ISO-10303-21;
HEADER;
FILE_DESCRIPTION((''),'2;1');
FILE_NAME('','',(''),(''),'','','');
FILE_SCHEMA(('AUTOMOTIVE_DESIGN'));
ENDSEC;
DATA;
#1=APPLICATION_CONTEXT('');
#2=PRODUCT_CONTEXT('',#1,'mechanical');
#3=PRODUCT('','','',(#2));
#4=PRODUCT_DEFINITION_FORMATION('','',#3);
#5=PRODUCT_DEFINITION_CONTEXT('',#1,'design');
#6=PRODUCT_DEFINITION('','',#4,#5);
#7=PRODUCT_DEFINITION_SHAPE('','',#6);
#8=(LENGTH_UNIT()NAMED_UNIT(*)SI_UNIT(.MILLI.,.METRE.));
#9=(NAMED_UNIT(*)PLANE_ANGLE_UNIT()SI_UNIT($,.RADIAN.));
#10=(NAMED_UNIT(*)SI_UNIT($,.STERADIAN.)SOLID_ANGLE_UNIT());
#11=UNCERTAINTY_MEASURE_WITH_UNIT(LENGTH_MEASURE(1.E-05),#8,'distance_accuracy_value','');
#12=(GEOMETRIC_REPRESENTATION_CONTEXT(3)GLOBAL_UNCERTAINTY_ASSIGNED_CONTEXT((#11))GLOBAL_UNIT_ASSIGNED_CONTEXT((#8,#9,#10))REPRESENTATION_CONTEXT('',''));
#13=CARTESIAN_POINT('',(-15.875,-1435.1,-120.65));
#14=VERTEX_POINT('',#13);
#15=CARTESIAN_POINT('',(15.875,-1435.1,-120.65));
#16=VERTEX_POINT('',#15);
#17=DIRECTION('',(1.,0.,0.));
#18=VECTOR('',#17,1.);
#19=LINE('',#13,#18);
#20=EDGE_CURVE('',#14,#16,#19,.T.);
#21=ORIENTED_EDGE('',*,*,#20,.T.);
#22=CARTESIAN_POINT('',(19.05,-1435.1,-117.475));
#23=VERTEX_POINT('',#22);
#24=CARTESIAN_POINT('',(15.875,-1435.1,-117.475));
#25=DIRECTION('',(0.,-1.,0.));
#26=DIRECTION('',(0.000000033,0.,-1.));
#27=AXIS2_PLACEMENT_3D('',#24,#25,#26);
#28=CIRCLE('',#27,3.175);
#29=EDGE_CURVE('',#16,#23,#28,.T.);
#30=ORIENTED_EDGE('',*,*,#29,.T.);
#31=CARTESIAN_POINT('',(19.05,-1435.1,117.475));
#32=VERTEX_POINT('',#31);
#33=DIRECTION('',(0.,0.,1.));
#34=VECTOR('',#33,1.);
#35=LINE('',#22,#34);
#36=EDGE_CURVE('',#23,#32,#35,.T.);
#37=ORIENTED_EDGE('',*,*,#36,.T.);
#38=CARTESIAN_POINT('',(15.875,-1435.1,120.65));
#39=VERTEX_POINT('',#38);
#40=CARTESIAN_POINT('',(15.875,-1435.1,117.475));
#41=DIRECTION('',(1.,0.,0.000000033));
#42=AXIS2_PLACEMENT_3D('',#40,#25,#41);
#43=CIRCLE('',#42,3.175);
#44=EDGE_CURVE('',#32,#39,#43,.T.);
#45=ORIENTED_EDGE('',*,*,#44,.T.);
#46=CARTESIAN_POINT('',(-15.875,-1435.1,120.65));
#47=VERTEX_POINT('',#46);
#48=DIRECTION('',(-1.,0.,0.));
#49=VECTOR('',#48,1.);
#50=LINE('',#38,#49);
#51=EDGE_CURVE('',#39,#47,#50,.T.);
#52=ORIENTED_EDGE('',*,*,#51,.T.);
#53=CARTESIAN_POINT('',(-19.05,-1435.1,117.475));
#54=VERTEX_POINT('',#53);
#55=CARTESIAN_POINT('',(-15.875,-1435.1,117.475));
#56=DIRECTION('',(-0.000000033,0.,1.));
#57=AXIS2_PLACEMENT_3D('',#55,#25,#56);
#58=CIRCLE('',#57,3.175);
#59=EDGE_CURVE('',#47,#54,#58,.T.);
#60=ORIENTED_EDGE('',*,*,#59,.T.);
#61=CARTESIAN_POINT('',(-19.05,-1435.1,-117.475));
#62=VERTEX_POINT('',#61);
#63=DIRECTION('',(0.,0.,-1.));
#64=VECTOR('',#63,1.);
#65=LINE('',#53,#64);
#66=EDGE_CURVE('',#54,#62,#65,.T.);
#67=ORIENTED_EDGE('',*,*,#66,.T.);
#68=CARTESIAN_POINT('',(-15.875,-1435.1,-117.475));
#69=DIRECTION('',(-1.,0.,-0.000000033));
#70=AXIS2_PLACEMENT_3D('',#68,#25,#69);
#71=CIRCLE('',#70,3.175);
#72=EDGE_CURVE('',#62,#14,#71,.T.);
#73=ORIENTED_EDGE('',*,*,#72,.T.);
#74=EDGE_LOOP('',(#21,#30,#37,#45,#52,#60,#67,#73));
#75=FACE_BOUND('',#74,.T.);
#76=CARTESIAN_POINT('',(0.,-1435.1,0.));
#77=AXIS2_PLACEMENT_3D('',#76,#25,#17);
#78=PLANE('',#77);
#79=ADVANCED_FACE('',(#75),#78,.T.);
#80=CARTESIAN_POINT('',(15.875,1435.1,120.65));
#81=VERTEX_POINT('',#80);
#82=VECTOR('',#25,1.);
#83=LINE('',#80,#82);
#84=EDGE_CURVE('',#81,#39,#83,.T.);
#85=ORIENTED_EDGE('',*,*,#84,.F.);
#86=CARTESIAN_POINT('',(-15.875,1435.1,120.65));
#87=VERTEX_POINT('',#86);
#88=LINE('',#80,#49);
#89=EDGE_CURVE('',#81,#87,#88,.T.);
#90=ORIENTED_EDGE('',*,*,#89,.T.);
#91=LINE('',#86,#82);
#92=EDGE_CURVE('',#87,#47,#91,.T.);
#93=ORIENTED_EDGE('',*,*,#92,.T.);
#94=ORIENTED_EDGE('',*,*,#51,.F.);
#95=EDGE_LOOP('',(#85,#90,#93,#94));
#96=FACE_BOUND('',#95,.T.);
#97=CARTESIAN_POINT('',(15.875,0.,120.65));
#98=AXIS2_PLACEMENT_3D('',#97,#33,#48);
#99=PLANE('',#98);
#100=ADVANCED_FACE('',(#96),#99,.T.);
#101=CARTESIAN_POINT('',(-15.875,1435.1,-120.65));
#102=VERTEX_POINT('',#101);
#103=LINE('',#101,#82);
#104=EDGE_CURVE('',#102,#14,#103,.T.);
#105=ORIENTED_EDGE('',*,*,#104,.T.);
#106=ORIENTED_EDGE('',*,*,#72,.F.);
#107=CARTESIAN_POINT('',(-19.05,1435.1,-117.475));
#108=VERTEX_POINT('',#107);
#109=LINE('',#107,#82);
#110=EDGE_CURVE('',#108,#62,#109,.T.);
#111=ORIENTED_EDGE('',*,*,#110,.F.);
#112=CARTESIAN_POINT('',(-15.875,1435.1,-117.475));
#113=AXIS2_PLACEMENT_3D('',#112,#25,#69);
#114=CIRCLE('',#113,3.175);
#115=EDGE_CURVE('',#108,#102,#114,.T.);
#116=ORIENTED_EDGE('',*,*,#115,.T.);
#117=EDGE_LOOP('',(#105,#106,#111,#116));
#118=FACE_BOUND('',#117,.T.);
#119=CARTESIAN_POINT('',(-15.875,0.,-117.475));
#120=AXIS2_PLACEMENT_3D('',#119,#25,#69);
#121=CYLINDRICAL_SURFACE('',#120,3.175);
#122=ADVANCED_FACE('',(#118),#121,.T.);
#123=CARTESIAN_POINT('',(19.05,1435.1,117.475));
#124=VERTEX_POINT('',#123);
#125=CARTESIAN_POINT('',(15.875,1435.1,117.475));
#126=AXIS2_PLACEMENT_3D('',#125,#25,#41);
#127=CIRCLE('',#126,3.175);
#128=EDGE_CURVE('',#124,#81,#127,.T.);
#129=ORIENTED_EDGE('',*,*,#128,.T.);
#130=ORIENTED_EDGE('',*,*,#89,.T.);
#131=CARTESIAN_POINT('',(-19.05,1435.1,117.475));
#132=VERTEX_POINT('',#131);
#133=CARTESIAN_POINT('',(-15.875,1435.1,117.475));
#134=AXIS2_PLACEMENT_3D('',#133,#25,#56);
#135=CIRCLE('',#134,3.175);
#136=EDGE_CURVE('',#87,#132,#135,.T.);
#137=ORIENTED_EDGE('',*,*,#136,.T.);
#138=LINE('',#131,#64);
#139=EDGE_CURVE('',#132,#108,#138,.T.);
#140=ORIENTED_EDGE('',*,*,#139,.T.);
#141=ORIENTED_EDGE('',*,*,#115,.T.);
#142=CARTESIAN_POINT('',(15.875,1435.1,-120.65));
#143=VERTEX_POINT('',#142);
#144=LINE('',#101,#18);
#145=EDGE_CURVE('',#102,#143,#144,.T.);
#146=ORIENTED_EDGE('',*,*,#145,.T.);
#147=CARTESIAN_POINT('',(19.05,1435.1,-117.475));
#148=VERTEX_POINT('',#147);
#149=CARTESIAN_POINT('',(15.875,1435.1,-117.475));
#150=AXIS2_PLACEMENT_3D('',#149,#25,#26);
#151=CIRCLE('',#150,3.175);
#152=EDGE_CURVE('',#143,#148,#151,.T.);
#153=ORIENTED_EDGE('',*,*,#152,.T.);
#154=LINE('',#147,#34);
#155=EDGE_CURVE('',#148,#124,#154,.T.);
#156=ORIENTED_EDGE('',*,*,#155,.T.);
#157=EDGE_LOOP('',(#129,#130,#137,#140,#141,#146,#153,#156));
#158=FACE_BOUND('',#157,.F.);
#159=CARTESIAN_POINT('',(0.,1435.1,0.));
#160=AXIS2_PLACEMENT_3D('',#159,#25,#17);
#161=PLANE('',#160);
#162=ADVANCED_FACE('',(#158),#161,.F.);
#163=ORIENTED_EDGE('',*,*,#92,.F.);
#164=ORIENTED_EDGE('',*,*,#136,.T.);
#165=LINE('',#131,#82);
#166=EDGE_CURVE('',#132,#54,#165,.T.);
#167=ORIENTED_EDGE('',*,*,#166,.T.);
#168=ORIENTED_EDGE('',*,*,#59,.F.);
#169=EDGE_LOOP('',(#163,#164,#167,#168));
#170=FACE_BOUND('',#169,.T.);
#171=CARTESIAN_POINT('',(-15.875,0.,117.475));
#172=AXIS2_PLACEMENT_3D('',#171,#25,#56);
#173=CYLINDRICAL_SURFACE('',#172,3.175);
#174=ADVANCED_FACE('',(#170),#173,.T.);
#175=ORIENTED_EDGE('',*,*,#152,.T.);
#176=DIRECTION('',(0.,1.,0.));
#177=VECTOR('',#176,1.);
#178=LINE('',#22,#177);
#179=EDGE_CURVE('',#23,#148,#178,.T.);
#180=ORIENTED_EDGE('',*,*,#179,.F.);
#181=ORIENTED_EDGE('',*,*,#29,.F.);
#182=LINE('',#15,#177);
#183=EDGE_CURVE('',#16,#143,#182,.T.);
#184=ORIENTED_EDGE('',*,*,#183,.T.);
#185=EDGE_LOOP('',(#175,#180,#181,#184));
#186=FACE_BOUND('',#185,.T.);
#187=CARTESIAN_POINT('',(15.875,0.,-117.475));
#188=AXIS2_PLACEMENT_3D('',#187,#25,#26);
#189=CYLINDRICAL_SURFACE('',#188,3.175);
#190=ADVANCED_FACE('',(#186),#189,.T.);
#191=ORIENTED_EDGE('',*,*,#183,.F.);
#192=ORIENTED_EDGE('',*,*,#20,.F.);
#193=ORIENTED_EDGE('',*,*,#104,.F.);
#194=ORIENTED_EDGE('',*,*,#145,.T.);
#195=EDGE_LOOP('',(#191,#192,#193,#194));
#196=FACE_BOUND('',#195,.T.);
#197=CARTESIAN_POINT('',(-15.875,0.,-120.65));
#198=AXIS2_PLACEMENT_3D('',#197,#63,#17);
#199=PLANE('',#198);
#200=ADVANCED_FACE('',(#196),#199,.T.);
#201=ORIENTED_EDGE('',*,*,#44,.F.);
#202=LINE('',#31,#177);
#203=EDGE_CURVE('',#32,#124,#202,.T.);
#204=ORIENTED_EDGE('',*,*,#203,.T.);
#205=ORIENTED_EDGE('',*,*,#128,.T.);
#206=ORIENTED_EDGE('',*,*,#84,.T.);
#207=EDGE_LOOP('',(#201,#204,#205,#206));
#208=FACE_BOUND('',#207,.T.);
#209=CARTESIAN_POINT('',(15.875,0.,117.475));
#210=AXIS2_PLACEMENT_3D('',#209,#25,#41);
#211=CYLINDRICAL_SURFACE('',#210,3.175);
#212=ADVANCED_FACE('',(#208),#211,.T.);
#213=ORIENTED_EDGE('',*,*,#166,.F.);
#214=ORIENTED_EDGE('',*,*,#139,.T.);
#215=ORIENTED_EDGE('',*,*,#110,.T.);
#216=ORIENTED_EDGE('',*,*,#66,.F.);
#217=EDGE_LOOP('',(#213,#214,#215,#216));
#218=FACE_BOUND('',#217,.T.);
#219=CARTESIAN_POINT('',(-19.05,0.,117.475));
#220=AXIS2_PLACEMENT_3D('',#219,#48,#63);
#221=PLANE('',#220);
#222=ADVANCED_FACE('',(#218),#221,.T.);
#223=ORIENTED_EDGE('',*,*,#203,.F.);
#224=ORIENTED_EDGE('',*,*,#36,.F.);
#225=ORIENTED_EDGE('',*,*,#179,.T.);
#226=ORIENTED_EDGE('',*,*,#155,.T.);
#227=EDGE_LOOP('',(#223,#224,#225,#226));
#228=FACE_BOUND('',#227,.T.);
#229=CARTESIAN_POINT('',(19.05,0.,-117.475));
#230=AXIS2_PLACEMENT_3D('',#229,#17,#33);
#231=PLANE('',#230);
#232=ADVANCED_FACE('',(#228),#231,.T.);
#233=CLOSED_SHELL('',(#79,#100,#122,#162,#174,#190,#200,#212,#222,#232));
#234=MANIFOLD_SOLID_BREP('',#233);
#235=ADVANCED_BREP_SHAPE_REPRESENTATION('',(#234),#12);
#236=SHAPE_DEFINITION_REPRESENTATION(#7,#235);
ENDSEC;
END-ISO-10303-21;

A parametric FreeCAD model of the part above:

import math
import FreeCAD as App
import Part
import Sketcher
Q = App.Units.Quantity

doc = App.newDocument("Part")
body = doc.addObject("PartDesign::Body", "Body")

# Sketch on XZ plane
sketch1 = doc.addObject("Sketcher::SketchObject", "Sketch")
body.addObject(sketch1)
sketch1.AttachmentSupport = (doc.XZ_Plane, [""])
sketch1.MapMode = "FlatFace"
sketch1.addGeometry(Part.ArcOfCircle(Part.Circle(App.Vector(15.875, 117.475, 0), App.Vector(0, 0, 1), 3.175), math.radians(0.000002), math.radians(89.999998)), False)
sketch1.addGeometry(Part.LineSegment(App.Vector(15.875, 120.65, 0), App.Vector(-15.875, 120.65, 0)), False)
sketch1.addGeometry(Part.ArcOfCircle(Part.Circle(App.Vector(-15.875, 117.475, 0), App.Vector(0, 0, 1), 3.175), math.radians(90.000002), math.radians(179.999998)), False)
sketch1.addGeometry(Part.LineSegment(App.Vector(-19.05, 117.475, 0), App.Vector(-19.05, -117.475, 0)), False)
sketch1.addGeometry(Part.ArcOfCircle(Part.Circle(App.Vector(-15.875, -117.475, 0), App.Vector(0, 0, 1), 3.175), math.radians(-179.999998), math.radians(-90.000002)), False)
sketch1.addGeometry(Part.LineSegment(App.Vector(-15.875, -120.65, 0), App.Vector(15.875, -120.65, 0)), False)
sketch1.addGeometry(Part.ArcOfCircle(Part.Circle(App.Vector(15.875, -117.475, 0), App.Vector(0, 0, 1), 3.175), math.radians(-89.999998), math.radians(-0.000002)), False)
sketch1.addGeometry(Part.LineSegment(App.Vector(19.05, -117.475, 0), App.Vector(19.05, 117.475, 0)), False)
sketch1.addConstraint(Sketcher.Constraint("Tangent", 0, 2, 1, 1))
sketch1.addConstraint(Sketcher.Constraint("Tangent", 1, 2, 2, 1))
sketch1.addConstraint(Sketcher.Constraint("Tangent", 2, 2, 3, 1))
sketch1.addConstraint(Sketcher.Constraint("Tangent", 3, 2, 4, 1))
sketch1.addConstraint(Sketcher.Constraint("Tangent", 4, 2, 5, 1))
sketch1.addConstraint(Sketcher.Constraint("Tangent", 5, 2, 6, 1))
sketch1.addConstraint(Sketcher.Constraint("Tangent", 6, 2, 7, 1))
sketch1.addConstraint(Sketcher.Constraint("Tangent", 7, 2, 0, 1))
sketch1.addConstraint(Sketcher.Constraint("Horizontal", 1))
sketch1.addConstraint(Sketcher.Constraint("Vertical", 3))
sketch1.addConstraint(Sketcher.Constraint("Horizontal", 5))
sketch1.addConstraint(Sketcher.Constraint("Vertical", 7))
sketch1.addConstraint(Sketcher.Constraint("Equal", 0, 2))
sketch1.addConstraint(Sketcher.Constraint("Equal", 2, 4))
sketch1.addConstraint(Sketcher.Constraint("Equal", 4, 6))
sketch1.addConstraint(Sketcher.Constraint("Symmetric", 0, 3, 4, 3, -1, 1))
sketch1.addConstraint(Sketcher.Constraint("Radius", 0, Q("0.125 in")))
sketch1.addConstraint(Sketcher.Constraint("DistanceX", 1, 2, 1, 1, Q("1.25 in")))
sketch1.addConstraint(Sketcher.Constraint("DistanceY", 3, 2, 3, 1, Q("9.25 in")))
pad1 = doc.addObject("PartDesign::Pad", "Pad")
body.addObject(pad1)
pad1.Profile = sketch1
pad1.Length = Q("113 in")
pad1.Midplane = True

doc.recompute()
